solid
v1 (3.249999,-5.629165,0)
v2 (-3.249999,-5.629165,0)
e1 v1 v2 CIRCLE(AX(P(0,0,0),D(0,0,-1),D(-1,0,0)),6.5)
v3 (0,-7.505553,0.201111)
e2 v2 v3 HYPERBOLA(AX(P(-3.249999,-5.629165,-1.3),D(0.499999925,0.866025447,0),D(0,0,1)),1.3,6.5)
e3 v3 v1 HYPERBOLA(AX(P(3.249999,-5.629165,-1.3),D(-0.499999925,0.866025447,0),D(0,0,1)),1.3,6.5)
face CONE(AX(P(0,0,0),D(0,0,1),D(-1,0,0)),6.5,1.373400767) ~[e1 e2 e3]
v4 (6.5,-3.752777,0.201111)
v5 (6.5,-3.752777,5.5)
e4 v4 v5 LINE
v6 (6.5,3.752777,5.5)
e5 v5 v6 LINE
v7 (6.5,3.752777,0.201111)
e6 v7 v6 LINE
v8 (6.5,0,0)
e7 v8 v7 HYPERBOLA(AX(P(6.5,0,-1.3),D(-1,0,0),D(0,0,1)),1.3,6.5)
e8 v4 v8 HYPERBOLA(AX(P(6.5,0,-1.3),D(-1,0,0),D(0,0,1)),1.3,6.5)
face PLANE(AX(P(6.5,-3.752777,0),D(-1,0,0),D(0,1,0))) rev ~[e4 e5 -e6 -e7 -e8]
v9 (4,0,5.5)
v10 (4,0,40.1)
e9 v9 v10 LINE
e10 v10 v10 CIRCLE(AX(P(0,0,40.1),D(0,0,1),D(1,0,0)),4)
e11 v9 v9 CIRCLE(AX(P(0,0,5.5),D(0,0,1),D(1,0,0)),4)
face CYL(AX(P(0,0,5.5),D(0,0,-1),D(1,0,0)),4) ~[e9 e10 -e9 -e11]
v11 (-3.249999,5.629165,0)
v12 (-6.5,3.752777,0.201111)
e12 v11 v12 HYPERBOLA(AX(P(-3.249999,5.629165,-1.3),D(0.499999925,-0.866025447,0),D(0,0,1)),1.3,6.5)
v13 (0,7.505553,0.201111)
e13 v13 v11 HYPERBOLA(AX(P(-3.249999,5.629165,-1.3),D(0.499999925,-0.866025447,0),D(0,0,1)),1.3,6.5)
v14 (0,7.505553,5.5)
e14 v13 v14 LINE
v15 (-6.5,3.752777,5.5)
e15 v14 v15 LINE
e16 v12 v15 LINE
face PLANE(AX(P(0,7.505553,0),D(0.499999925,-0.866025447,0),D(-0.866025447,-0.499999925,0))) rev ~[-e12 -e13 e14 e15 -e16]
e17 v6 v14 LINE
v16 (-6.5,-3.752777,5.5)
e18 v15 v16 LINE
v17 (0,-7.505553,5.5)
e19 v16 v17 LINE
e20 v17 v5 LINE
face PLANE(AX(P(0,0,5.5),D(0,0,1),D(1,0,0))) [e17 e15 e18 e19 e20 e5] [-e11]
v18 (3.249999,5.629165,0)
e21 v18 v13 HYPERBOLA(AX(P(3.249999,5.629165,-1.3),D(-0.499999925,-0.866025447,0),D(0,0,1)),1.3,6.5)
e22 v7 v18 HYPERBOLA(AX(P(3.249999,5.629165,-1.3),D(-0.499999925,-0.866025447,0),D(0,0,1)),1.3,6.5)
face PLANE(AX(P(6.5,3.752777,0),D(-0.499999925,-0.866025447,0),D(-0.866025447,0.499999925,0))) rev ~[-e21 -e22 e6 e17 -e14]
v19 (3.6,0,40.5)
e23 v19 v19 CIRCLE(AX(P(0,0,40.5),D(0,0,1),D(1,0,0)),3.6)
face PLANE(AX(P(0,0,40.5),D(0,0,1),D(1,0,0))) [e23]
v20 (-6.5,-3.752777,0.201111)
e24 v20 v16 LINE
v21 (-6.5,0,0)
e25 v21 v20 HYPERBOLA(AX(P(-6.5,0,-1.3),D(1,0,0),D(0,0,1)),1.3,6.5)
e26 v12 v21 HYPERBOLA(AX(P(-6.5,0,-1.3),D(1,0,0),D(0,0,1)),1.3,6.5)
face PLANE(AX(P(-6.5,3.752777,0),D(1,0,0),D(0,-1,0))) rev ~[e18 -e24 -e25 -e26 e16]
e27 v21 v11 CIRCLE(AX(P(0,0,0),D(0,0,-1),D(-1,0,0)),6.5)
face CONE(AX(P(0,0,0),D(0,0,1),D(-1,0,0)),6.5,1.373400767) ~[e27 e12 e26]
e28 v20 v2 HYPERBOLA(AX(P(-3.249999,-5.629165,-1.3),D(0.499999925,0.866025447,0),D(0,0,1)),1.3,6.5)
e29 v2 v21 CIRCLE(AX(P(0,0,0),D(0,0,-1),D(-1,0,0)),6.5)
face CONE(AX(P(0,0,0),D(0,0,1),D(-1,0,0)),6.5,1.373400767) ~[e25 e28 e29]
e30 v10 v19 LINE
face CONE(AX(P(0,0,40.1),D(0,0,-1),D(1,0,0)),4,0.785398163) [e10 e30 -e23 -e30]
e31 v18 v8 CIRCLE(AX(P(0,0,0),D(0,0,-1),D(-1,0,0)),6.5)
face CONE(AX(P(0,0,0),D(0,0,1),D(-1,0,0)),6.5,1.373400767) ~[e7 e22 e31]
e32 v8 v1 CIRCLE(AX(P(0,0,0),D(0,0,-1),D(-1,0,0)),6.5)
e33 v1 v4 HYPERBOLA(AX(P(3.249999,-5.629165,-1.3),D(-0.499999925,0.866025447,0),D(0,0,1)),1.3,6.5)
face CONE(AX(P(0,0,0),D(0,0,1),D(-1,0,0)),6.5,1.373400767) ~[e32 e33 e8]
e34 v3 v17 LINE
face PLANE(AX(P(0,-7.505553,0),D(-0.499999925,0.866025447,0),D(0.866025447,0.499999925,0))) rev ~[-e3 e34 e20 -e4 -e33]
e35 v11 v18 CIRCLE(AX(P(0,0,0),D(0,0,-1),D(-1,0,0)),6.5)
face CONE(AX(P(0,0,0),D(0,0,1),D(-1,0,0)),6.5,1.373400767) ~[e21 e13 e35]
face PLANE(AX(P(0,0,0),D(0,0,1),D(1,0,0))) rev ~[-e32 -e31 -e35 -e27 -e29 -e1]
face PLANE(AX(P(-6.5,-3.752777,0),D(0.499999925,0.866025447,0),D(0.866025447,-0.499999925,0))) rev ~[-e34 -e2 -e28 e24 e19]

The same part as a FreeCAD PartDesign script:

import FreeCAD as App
import Part
import Sketcher
Q = App.Units.Quantity


def edges_at(feature, points):
    """Names of the edges that pass closest to the given points."""
    edges = feature.Shape.Edges
    near = lambda p: min(range(len(edges)), key=lambda i: edges[i].distToShape(Part.Vertex(*p))[0])
    return sorted({f"Edge{near(p) + 1}" for p in points})

doc = App.newDocument("Part")
body = doc.addObject("PartDesign::Body", "Body")

# Sketch on XY plane
sketch1 = body.newObject("Sketcher::SketchObject", "Sketch")
sketch1.AttachmentSupport = (doc.getObject("XY_Plane"), [""])
sketch1.MapMode = "FlatFace"
sketch1.addGeometry(Part.LineSegment(App.Vector(6, 4, 0), App.Vector(0, 8, 0)), False)
sketch1.addGeometry(Part.LineSegment(App.Vector(0, 8, 0), App.Vector(-6, 4, 0)), False)
sketch1.addGeometry(Part.LineSegment(App.Vector(-6, 4, 0), App.Vector(-6, -4, 0)), False)
sketch1.addGeometry(Part.LineSegment(App.Vector(-6, -4, 0), App.Vector(0, -8, 0)), False)
sketch1.addGeometry(Part.LineSegment(App.Vector(0, -8, 0), App.Vector(6, -4, 0)), False)
sketch1.addGeometry(Part.LineSegment(App.Vector(6, -4, 0), App.Vector(6, 4, 0)), False)
sketch1.addConstraint(Sketcher.Constraint("Coincident", 0, 2, 1, 1))
sketch1.addConstraint(Sketcher.Constraint("Coincident", 1, 2, 2, 1))
sketch1.addConstraint(Sketcher.Constraint("Coincident", 2, 2, 3, 1))
sketch1.addConstraint(Sketcher.Constraint("Coincident", 3, 2, 4, 1))
sketch1.addConstraint(Sketcher.Constraint("Coincident", 4, 2, 5, 1))
sketch1.addConstraint(Sketcher.Constraint("Coincident", 5, 2, 0, 1))
sketch1.addConstraint(Sketcher.Constraint("Vertical", 2))
sketch1.addConstraint(Sketcher.Constraint("Vertical", 5))
sketch1.addConstraint(Sketcher.Constraint("Symmetric", 0, 2, 3, 2, -1, 1))
sketch1.addConstraint(Sketcher.Constraint("Symmetric", 1, 2, 4, 2, -1, 1))
sketch1.addConstraint(Sketcher.Constraint("PointOnObject", 0, 2, -2))
sketch1.addConstraint(Sketcher.Constraint("Parallel", 0, 3))
sketch1.addConstraint(Sketcher.Constraint("Horizontal", 2, 2, 4, 2))
sketch1.addConstraint(Sketcher.Constraint("Angle", 0, Q("150.000005 deg")))
sketch1.addConstraint(Sketcher.Constraint("DistanceX", 2, 2, 4, 2, 13.0))
sketch1.addConstraint(Sketcher.Constraint("DistanceY", 2, 2, 2, 1, 7.505554))
pad1 = body.newObject("PartDesign::Pad", "Pad")
pad1.Profile = sketch1
pad1.Length = 5.5

# Sketch on XY plane
sketch2 = body.newObject("Sketcher::SketchObject", "Sketch001")
sketch2.AttachmentSupport = (doc.getObject("XY_Plane"), [""])
sketch2.MapMode = "FlatFace"
sketch2.AttachmentOffset = App.Placement(App.Vector(0, 0, 5.5), App.Rotation())
sketch2.addGeometry(Part.Circle(App.Vector(0, 0, 0), App.Vector(0, 0, 1), 4), False)
sketch2.addConstraint(Sketcher.Constraint("Coincident", 0, 3, -1, 1))
sketch2.addConstraint(Sketcher.Constraint("Diameter", 0, 8.0))
pad2 = body.newObject("PartDesign::Pad", "Pad001")
pad2.Profile = sketch2
pad2.Length = 35
doc.recompute()

chamfer = body.newObject("PartDesign::Chamfer", "Chamfer")
chamfer.Base = (pad2, edges_at(pad2, [(-4, 0, 40.5)]))
chamfer.Size = 0.4

# Sketch on XZ plane
sketch3 = body.newObject("Sketcher::SketchObject", "Sketch002")
sketch3.AttachmentSupport = (doc.getObject("XZ_Plane"), [""])
sketch3.MapMode = "FlatFace"
sketch3.addGeometry(Part.LineSegment(App.Vector(-11.5, 1, 0), App.Vector(-11.5, 0, 0)), False)
sketch3.addGeometry(Part.LineSegment(App.Vector(-11.5, 0, 0), App.Vector(-6.5, 0, 0)), False)
sketch3.addGeometry(Part.LineSegment(App.Vector(-6.5, 0, 0), App.Vector(-11.5, 1, 0)), False)
sketch3.addConstraint(Sketcher.Constraint("Coincident", 0, 2, 1, 1))
sketch3.addConstraint(Sketcher.Constraint("Coincident", 1, 2, 2, 1))
sketch3.addConstraint(Sketcher.Constraint("Coincident", 2, 2, 0, 1))
sketch3.addConstraint(Sketcher.Constraint("Vertical", 0))
sketch3.addConstraint(Sketcher.Constraint("Horizontal", 1))
sketch3.addConstraint(Sketcher.Constraint("PointOnObject", 0, 2, -1))
sketch3.addConstraint(Sketcher.Constraint("DistanceX", 1, 1, 1, 2, 5.0))
sketch3.addConstraint(Sketcher.Constraint("DistanceY", 0, 2, 0, 1, 1.0))
sketch3.addConstraint(Sketcher.Constraint("DistanceX", 0, 2, -1, 1, 11.5))
groove = body.newObject("PartDesign::Groove", "Groove")
groove.Profile = sketch3
groove.ReferenceAxis = (sketch3, ["V_Axis"])
groove.Angle = 360

doc.recompute()
